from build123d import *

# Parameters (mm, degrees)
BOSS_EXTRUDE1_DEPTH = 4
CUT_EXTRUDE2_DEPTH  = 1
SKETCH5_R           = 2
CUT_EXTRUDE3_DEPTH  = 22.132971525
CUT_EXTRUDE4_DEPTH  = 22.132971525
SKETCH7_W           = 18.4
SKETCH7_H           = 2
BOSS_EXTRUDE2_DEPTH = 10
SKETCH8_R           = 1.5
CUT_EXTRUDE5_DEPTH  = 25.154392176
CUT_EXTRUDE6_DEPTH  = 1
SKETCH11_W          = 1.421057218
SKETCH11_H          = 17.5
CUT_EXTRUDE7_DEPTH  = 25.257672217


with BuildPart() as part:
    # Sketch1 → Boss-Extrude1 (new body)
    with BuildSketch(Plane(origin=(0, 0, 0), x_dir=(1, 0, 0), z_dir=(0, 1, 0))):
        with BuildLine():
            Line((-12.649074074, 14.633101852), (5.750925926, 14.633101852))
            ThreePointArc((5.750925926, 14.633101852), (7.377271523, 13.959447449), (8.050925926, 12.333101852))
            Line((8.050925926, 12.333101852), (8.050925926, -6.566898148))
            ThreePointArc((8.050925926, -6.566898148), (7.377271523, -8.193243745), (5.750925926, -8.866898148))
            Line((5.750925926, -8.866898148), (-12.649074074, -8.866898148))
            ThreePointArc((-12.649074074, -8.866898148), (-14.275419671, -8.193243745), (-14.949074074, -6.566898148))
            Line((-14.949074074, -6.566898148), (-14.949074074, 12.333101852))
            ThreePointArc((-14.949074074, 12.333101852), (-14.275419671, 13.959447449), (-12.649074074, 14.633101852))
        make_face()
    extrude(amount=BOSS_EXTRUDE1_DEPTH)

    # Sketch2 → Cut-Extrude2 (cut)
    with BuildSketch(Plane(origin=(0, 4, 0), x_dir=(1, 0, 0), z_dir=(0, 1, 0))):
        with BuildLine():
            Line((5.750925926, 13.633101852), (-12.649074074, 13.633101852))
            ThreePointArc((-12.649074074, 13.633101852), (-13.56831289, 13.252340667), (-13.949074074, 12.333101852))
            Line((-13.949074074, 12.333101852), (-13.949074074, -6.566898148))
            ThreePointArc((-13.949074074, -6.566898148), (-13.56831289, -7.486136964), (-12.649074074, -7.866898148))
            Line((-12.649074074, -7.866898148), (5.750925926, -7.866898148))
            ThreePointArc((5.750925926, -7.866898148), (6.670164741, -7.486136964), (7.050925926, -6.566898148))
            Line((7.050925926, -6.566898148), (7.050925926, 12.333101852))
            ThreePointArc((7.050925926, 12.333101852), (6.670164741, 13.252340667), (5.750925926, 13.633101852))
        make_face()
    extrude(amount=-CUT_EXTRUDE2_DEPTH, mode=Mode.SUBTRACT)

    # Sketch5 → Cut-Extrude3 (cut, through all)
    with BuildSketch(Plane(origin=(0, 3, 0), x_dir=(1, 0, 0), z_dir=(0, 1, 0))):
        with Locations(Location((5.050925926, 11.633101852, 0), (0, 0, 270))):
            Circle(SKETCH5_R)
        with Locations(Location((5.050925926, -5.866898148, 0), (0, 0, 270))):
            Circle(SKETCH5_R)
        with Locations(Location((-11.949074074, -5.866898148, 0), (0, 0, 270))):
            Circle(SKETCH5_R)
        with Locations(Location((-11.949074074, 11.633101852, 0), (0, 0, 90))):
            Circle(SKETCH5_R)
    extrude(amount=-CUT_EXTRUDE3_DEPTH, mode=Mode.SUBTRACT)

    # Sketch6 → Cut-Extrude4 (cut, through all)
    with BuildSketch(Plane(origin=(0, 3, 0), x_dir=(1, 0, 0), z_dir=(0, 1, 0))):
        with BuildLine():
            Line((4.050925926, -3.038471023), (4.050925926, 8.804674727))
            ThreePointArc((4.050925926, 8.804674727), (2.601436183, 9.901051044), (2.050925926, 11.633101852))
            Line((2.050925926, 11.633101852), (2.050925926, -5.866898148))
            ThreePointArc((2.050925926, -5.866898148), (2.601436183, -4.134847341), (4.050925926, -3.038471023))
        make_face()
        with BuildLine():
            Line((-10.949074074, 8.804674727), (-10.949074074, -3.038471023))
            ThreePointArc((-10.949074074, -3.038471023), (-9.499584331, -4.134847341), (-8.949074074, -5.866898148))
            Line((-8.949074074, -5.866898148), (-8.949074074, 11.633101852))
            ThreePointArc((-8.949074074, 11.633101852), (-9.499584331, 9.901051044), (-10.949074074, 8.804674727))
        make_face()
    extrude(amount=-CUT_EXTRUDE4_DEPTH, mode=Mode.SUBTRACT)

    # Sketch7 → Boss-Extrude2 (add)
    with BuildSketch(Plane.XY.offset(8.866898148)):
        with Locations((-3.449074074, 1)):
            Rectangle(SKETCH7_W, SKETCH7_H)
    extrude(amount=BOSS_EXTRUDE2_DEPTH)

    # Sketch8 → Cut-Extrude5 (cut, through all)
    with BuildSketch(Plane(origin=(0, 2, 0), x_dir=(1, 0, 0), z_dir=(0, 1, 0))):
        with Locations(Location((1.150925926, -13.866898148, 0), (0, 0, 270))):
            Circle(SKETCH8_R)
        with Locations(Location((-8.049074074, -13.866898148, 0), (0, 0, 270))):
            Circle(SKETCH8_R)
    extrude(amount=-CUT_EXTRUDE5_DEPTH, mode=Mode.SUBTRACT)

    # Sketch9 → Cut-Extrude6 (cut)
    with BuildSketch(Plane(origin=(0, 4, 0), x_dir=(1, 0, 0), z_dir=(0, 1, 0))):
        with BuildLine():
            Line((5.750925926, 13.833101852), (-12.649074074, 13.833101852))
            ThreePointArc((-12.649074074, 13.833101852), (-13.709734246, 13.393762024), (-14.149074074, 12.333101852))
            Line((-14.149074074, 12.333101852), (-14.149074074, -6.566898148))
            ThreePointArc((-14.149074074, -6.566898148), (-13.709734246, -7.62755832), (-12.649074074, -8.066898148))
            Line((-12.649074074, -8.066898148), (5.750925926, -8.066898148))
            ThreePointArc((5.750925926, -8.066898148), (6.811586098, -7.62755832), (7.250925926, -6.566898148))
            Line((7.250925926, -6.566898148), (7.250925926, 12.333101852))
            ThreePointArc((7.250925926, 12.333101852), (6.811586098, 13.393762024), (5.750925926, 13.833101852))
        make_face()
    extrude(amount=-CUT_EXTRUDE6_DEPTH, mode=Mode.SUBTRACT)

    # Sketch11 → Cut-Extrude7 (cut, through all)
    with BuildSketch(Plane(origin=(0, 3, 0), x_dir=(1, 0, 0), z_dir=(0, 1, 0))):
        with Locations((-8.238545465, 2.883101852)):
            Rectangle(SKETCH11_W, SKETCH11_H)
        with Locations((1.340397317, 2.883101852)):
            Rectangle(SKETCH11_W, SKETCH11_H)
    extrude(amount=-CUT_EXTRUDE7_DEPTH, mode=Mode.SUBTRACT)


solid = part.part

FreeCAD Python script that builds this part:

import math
import FreeCAD as App
import Part
import Sketcher
from FreeCAD import Vector
Q = App.Units.Quantity

doc = App.newDocument("Part")
params = doc.addObject("Spreadsheet::Sheet", "Params")
for row, (alias, value) in enumerate([
    ("sketch1_radius", "2.3 mm"),
    ("sketch1_width", "18.4 mm"),
    ("sketch1_height", "18.9 mm"),
    ("pad1_length", "4 mm"),
    ("sketch2_radius", "1.3 mm"),
    ("sketch2_width", "18.4 mm"),
    ("sketch2_height", "18.9 mm"),
    ("pocket1_length", "1 mm"),
    ("sketch3_diameter", "4 mm"),
    ("sketch4_radius", "3 mm"),
    ("sketch4_height", "17.5 mm"),
    ("sketch5_height", "2 mm"),
    ("sketch5_width", "18.4 mm"),
    ("pad2_length", "10 mm"),
    ("sketch6_diameter", "3 mm"),
    ("sketch7_radius", "1.5 mm"),
    ("sketch7_width", "18.4 mm"),
    ("sketch7_height", "18.9 mm"),
    ("pocket5_length", "1 mm"),
    ("sketch8_height", "17.5 mm"),
], start=1):
    params.set(f"A{row}", alias)
    params.set(f"B{row}", "=" + value)
    params.setAlias(f"B{row}", alias)

body = doc.addObject("PartDesign::Body", "Body")

# Sketch on XZ plane
sketch1 = body.newObject("Sketcher::SketchObject", "Sketch")
sketch1.AttachmentSupport = (doc.getObject("XZ_Plane"), [""])
sketch1.MapMode = "FlatFace"
sketch1.addGeometry([
    Part.LineSegment(Vector(5.8, -14.6, 0), Vector(-12.6, -14.6, 0)),  # 0
    Part.ArcOfCircle(Part.Circle(Vector(-12.6, -12.3, 0), Vector(0, 0, 1), 2.3), math.radians(180), math.radians(270)),  # 1
    Part.LineSegment(Vector(-14.9, -12.3, 0), Vector(-14.9, 6.6, 0)),  # 2
    Part.ArcOfCircle(Part.Circle(Vector(-12.6, 6.6, 0), Vector(0, 0, 1), 2.3), math.radians(90), math.radians(180)),  # 3
    Part.LineSegment(Vector(-12.6, 8.9, 0), Vector(5.8, 8.9, 0)),  # 4
    Part.ArcOfCircle(Part.Circle(Vector(5.8, 6.6, 0), Vector(0, 0, 1), 2.3), math.radians(0), math.radians(90)),  # 5
    Part.LineSegment(Vector(8.1, 6.6, 0), Vector(8.1, -12.3, 0)),  # 6
    Part.ArcOfCircle(Part.Circle(Vector(5.8, -12.3, 0), Vector(0, 0, 1), 2.3), math.radians(-90), math.radians(0)),  # 7
], False)
sketch1.addConstraint([
    Sketcher.Constraint("Tangent", 0, 2, 1, 2),
    Sketcher.Constraint("Tangent", 1, 1, 2, 1),
    Sketcher.Constraint("Tangent", 2, 2, 3, 2),
    Sketcher.Constraint("Tangent", 3, 1, 4, 1),
    Sketcher.Constraint("Tangent", 4, 2, 5, 2),
    Sketcher.Constraint("Tangent", 5, 1, 6, 1),
    Sketcher.Constraint("Tangent", 6, 2, 7, 2),
    Sketcher.Constraint("Tangent", 7, 1, 0, 1),
    Sketcher.Constraint("Horizontal", 0),
    Sketcher.Constraint("Vertical", 2),
    Sketcher.Constraint("Horizontal", 4),
    Sketcher.Constraint("Vertical", 6),
    Sketcher.Constraint("Equal", 1, 3),
    Sketcher.Constraint("Equal", 3, 5),
    Sketcher.Constraint("Equal", 5, 7),
    Sketcher.Constraint("Radius", 1, Q("2.3 mm")),
    Sketcher.Constraint("DistanceX", 0, 2, 0, 1, Q("18.4 mm")),
    Sketcher.Constraint("DistanceY", 2, 1, 2, 2, Q("18.9 mm")),
    Sketcher.Constraint("DistanceY", 1, 3, -1, 1, Q("12.333102 mm")),
    Sketcher.Constraint("DistanceX", 1, 3, -1, 1, Q("12.649074 mm")),
])
sketch1.setExpression("Constraints[15]", "Params.sketch1_radius")
sketch1.setExpression("Constraints[16]", "Params.sketch1_width")
sketch1.setExpression("Constraints[17]", "Params.sketch1_height")
pad1 = body.newObject("PartDesign::Pad", "Pad")
pad1.Profile = sketch1
pad1.setExpression("Length", "Params.pad1_length")
pad1.Reversed = True

# Sketch on XZ plane
sketch2 = body.newObject("Sketcher::SketchObject", "Sketch001")
sketch2.AttachmentSupport = (doc.getObject("XZ_Plane"), [""])
sketch2.MapMode = "FlatFace"
sketch2.AttachmentOffset = App.Placement(Vector(0, 0, -4), App.Rotation())
sketch2.addGeometry([
    Part.LineSegment(Vector(5.8, -13.6, 0), Vector(-12.6, -13.6, 0)),  # 0
    Part.ArcOfCircle(Part.Circle(Vector(-12.6, -12.3, 0), Vector(0, 0, 1), 1.3), math.radians(180), math.radians(270)),  # 1
    Part.LineSegment(Vector(-13.9, -12.3, 0), Vector(-13.9, 6.6, 0)),  # 2
    Part.ArcOfCircle(Part.Circle(Vector(-12.6, 6.6, 0), Vector(0, 0, 1), 1.3), math.radians(90), math.radians(180)),  # 3
    Part.LineSegment(Vector(-12.6, 7.9, 0), Vector(5.8, 7.9, 0)),  # 4
    Part.ArcOfCircle(Part.Circle(Vector(5.8, 6.6, 0), Vector(0, 0, 1), 1.3), math.radians(0), math.radians(90)),  # 5
    Part.LineSegment(Vector(7.1, 6.6, 0), Vector(7.1, -12.3, 0)),  # 6
    Part.ArcOfCircle(Part.Circle(Vector(5.8, -12.3, 0), Vector(0, 0, 1), 1.3), math.radians(-90), math.radians(0)),  # 7
], False)
sketch2.addConstraint([
    Sketcher.Constraint("Tangent", 0, 2, 1, 2),
    Sketcher.Constraint("Tangent", 1, 1, 2, 1),
    Sketcher.Constraint("Tangent", 2, 2, 3, 2),
    Sketcher.Constraint("Tangent", 3, 1, 4, 1),
    Sketcher.Constraint("Tangent", 4, 2, 5, 2),
    Sketcher.Constraint("Tangent", 5, 1, 6, 1),
    Sketcher.Constraint("Tangent", 6, 2, 7, 2),
    Sketcher.Constraint("Tangent", 7, 1, 0, 1),
    Sketcher.Constraint("Horizontal", 0),
    Sketcher.Constraint("Vertical", 2),
    Sketcher.Constraint("Horizontal", 4),
    Sketcher.Constraint("Vertical", 6),
    Sketcher.Constraint("Equal", 1, 3),
    Sketcher.Constraint("Equal", 3, 5),
    Sketcher.Constraint("Equal", 5, 7),
    Sketcher.Constraint("Radius", 1, Q("1.3 mm")),
    Sketcher.Constraint("DistanceX", 0, 2, 0, 1, Q("18.4 mm")),
    Sketcher.Constraint("DistanceY", 2, 1, 2, 2, Q("18.9 mm")),
    Sketcher.Constraint("DistanceY", 1, 3, -1, 1, Q("12.333102 mm")),
    Sketcher.Constraint("DistanceX", 1, 3, -1, 1, Q("12.649074 mm")),
])
sketch2.setExpression("Constraints[15]", "Params.sketch2_radius")
sketch2.setExpression("Constraints[16]", "Params.sketch2_width")
sketch2.setExpression("Constraints[17]", "Params.sketch2_height")
pocket1 = body.newObject("PartDesign::Pocket", "Pocket")
pocket1.Profile = sketch2
pocket1.setExpression("Length", "Params.pocket1_length")
pocket1.Reversed = True

# Sketch on XZ plane
sketch3 = body.newObject("Sketcher::SketchObject", "Sketch002")
sketch3.AttachmentSupport = (doc.getObject("XZ_Plane"), [""])
sketch3.MapMode = "FlatFace"
sketch3.AttachmentOffset = App.Placement(Vector(0, 0, -3), App.Rotation())
sketch3.addGeometry([
    Part.Circle(Vector(5.1, -11.6, 0), Vector(0, 0, 1), 2),
    Part.Circle(Vector(5.1, 5.9, 0), Vector(0, 0, 1), 2),
    Part.Circle(Vector(-11.9, 5.9, 0), Vector(0, 0, 1), 2),
    Part.Circle(Vector(-11.9, -11.6, 0), Vector(0, 0, 1), 2),
], False)
sketch3.addConstraint([
    Sketcher.Constraint("Equal", 0, 1),
    Sketcher.Constraint("Equal", 1, 2),
    Sketcher.Constraint("Equal", 2, 3),
    Sketcher.Constraint("Horizontal", 1, 3, 2, 3),
    Sketcher.Constraint("Horizontal", 0, 3, 3, 3),
    Sketcher.Constraint("Vertical", 0, 3, 1, 3),
    Sketcher.Constraint("Vertical", 2, 3, 3, 3),
    Sketcher.Constraint("Diameter", 0, Q("4 mm")),
    Sketcher.Constraint("DistanceX", 2, 3, 1, 3, Q("17 mm")),
    Sketcher.Constraint("DistanceY", 0, 3, 1, 3, Q("17.5 mm")),
    Sketcher.Constraint("DistanceY", 0, 3, -1, 1, Q("11.633102 mm")),
    Sketcher.Constraint("DistanceX", -1, 1, 0, 3, Q("5.050926 mm")),
])
sketch3.setExpression("Constraints[7]", "Params.sketch3_diameter")
pocket2 = body.newObject("PartDesign::Pocket", "Pocket001")
pocket2.Profile = sketch3
pocket2.Type = "ThroughAll"
pocket2.Reversed = True

# Sketch on XZ plane
sketch4 = body.newObject("Sketcher::SketchObject", "Sketch003")
sketch4.AttachmentSupport = (doc.getObject("XZ_Plane"), [""])
sketch4.MapMode = "FlatFace"
sketch4.AttachmentOffset = App.Placement(Vector(0, 0, -3), App.Rotation())
sketch4.addGeometry([
    Part.LineSegment(Vector(4.1, 3, 0), Vector(4.1, -8.8, 0)),  # 0
    Part.ArcOfCircle(Part.Circle(Vector(5.1, -11.6, 0), Vector(0, 0, 1), 3), math.radians(109), math.radians(180)),  # 1
    Part.LineSegment(Vector(2.1, -11.6, 0), Vector(2.1, 5.9, 0)),  # 2
    Part.ArcOfCircle(Part.Circle(Vector(5.1, 5.9, 0), Vector(0, 0, 1), 3), math.radians(-180), math.radians(-109)),  # 3
    Part.LineSegment(Vector(-10.9, -8.8, 0), Vector(-10.9, 3, 0)),  # 4
    Part.ArcOfCircle(Part.Circle(Vector(-11.9, 5.9, 0), Vector(0, 0, 1), 3), math.radians(-71), math.radians(0)),  # 5
    Part.LineSegment(Vector(-8.9, 5.9, 0), Vector(-8.9, -11.6, 0)),  # 6
    Part.ArcOfCircle(Part.Circle(Vector(-11.9, -11.6, 0), Vector(0, 0, 1), 3), math.radians(0), math.radians(71)),  # 7
], False)
sketch4.addConstraint([
    Sketcher.Constraint("Coincident", 0, 2, 1, 1),
    Sketcher.Constraint("Tangent", 1, 2, 2, 1),
    Sketcher.Constraint("Tangent", 2, 2, 3, 1),
    Sketcher.Constraint("Coincident", 3, 2, 0, 1),
    Sketcher.Constraint("Coincident", 4, 2, 5, 1),
    Sketcher.Constraint("Tangent", 5, 2, 6, 1),
    Sketcher.Constraint("Tangent", 6, 2, 7, 1),
    Sketcher.Constraint("Coincident", 7, 2, 4, 1),
    Sketcher.Constraint("Vertical", 0),
    Sketcher.Constraint("Vertical", 2),
    Sketcher.Constraint("Vertical", 4),
    Sketcher.Constraint("Vertical", 6),
    Sketcher.Constraint("Equal", 1, 3),
    Sketcher.Constraint("Equal", 3, 5),
    Sketcher.Constraint("Equal", 5, 7),
    Sketcher.Constraint("Horizontal", 3, 3, 5, 3),
    Sketcher.Constraint("Horizontal", 1, 3, 7, 3),
    Sketcher.Constraint("Horizontal", 3, 2, 4, 2),
    Sketcher.Constraint("Radius", 1, Q("3 mm")),
    Sketcher.Constraint("DistanceY", 2, 1, 2, 2, Q("17.5 mm")),
    Sketcher.Constraint("DistanceX", 5, 3, 3, 3, Q("17 mm")),
    Sketcher.Constraint("DistanceX", 0, 2, 1, 3, Q("1 mm")),
    Sketcher.Constraint("DistanceY", 1, 3, -1, 1, Q("11.633102 mm")),
    Sketcher.Constraint("DistanceX", -1, 1, 1, 3, Q("5.050926 mm")),
])
sketch4.setExpression("Constraints[18]", "Params.sketch4_radius")
sketch4.setExpression("Constraints[19]", "Params.sketch4_height")
pocket3 = body.newObject("PartDesign::Pocket", "Pocket002")
pocket3.Profile = sketch4
pocket3.Type = "ThroughAll"
pocket3.Reversed = True

# Sketch on XY plane
sketch5 = body.newObject("Sketcher::SketchObject", "Sketch004")
sketch5.AttachmentSupport = (doc.getObject("XY_Plane"), [""])
sketch5.MapMode = "FlatFace"
sketch5.AttachmentOffset = App.Placement(Vector(0, 0, 8.866898), App.Rotation())
sketch5.addGeometry([
    Part.LineSegment(Vector(-12.6, 2, 0), Vector(-12.6, 0, 0)),
    Part.LineSegment(Vector(-12.6, 0, 0), Vector(5.8, 0, 0)),
    Part.LineSegment(Vector(5.8, 0, 0), Vector(5.8, 2, 0)),
    Part.LineSegment(Vector(5.8, 2, 0), Vector(-12.6, 2, 0)),
], False)
sketch5.addConstraint([
    Sketcher.Constraint("Coincident", 0, 2, 1, 1),
    Sketcher.Constraint("Coincident", 1, 2, 2, 1),
    Sketcher.Constraint("Coincident", 2, 2, 3, 1),
    Sketcher.Constraint("Coincident", 3, 2, 0, 1),
    Sketcher.Constraint("Vertical", 0),
    Sketcher.Constraint("Horizontal", 1),
    Sketcher.Constraint("Vertical", 2),
    Sketcher.Constraint("Horizontal", 3),
    Sketcher.Constraint("PointOnObject", 0, 2, -1),
    Sketcher.Constraint("DistanceY", 0, 2, 0, 1, Q("2 mm")),
    Sketcher.Constraint("DistanceX", 1, 1, 1, 2, Q("18.4 mm")),
    Sketcher.Constraint("DistanceX", 0, 2, -1, 1, Q("12.649074 mm")),
])
sketch5.setExpression("Constraints[9]", "Params.sketch5_height")
sketch5.setExpression("Constraints[10]", "Params.sketch5_width")
pad2 = body.newObject("PartDesign::Pad", "Pad001")
pad2.Profile = sketch5
pad2.setExpression("Length", "Params.pad2_length")

# Sketch on XZ plane
sketch6 = body.newObject("Sketcher::SketchObject", "Sketch005")
sketch6.AttachmentSupport = (doc.getObject("XZ_Plane"), [""])
sketch6.MapMode = "FlatFace"
sketch6.AttachmentOffset = App.Placement(Vector(0, 0, -2), App.Rotation())
sketch6.addGeometry([
    Part.Circle(Vector(1.2, 13.9, 0), Vector(0, 0, 1), 1.5),
    Part.Circle(Vector(-8, 13.9, 0), Vector(0, 0, 1), 1.5),
], False)
sketch6.addConstraint([
    Sketcher.Constraint("Equal", 0, 1),
    Sketcher.Constraint("Horizontal", 0, 3, 1, 3),
    Sketcher.Constraint("Diameter", 0, Q("3 mm")),
    Sketcher.Constraint("DistanceX", 1, 3, 0, 3, Q("9.2 mm")),
    Sketcher.Constraint("DistanceY", -1, 1, 0, 3, Q("13.866898 mm")),
    Sketcher.Constraint("DistanceX", -1, 1, 0, 3, Q("1.150926 mm")),
])
sketch6.setExpression("Constraints[2]", "Params.sketch6_diameter")
pocket4 = body.newObject("PartDesign::Pocket", "Pocket003")
pocket4.Profile = sketch6
pocket4.Type = "ThroughAll"
pocket4.Reversed = True

# Sketch on XZ plane
sketch7 = body.newObject("Sketcher::SketchObject", "Sketch006")
sketch7.AttachmentSupport = (doc.getObject("XZ_Plane"), [""])
sketch7.MapMode = "FlatFace"
sketch7.AttachmentOffset = App.Placement(Vector(0, 0, -4), App.Rotation())
sketch7.addGeometry([
    Part.LineSegment(Vector(5.8, -13.8, 0), Vector(-12.6, -13.8, 0)),  # 0
    Part.ArcOfCircle(Part.Circle(Vector(-12.6, -12.3, 0), Vector(0, 0, 1), 1.5), math.radians(180), math.radians(270)),  # 1
    Part.LineSegment(Vector(-14.1, -12.3, 0), Vector(-14.1, 6.6, 0)),  # 2
    Part.ArcOfCircle(Part.Circle(Vector(-12.6, 6.6, 0), Vector(0, 0, 1), 1.5), math.radians(90), math.radians(180)),  # 3
    Part.LineSegment(Vector(-12.6, 8.1, 0), Vector(5.8, 8.1, 0)),  # 4
    Part.ArcOfCircle(Part.Circle(Vector(5.8, 6.6, 0), Vector(0, 0, 1), 1.5), math.radians(0), math.radians(90)),  # 5
    Part.LineSegment(Vector(7.3, 6.6, 0), Vector(7.3, -12.3, 0)),  # 6
    Part.ArcOfCircle(Part.Circle(Vector(5.8, -12.3, 0), Vector(0, 0, 1), 1.5), math.radians(-90), math.radians(0)),  # 7
], False)
sketch7.addConstraint([
    Sketcher.Constraint("Tangent", 0, 2, 1, 2),
    Sketcher.Constraint("Tangent", 1, 1, 2, 1),
    Sketcher.Constraint("Tangent", 2, 2, 3, 2),
    Sketcher.Constraint("Tangent", 3, 1, 4, 1),
    Sketcher.Constraint("Tangent", 4, 2, 5, 2),
    Sketcher.Constraint("Tangent", 5, 1, 6, 1),
    Sketcher.Constraint("Tangent", 6, 2, 7, 2),
    Sketcher.Constraint("Tangent", 7, 1, 0, 1),
    Sketcher.Constraint("Horizontal", 0),
    Sketcher.Constraint("Vertical", 2),
    Sketcher.Constraint("Horizontal", 4),
    Sketcher.Constraint("Vertical", 6),
    Sketcher.Constraint("Equal", 1, 3),
    Sketcher.Constraint("Equal", 3, 5),
    Sketcher.Constraint("Equal", 5, 7),
    Sketcher.Constraint("Radius", 1, Q("1.5 mm")),
    Sketcher.Constraint("DistanceX", 0, 2, 0, 1, Q("18.4 mm")),
    Sketcher.Constraint("DistanceY", 2, 1, 2, 2, Q("18.9 mm")),
    Sketcher.Constraint("DistanceY", 1, 3, -1, 1, Q("12.333102 mm")),
    Sketcher.Constraint("DistanceX", 1, 3, -1, 1, Q("12.649074 mm")),
])
sketch7.setExpression("Constraints[15]", "Params.sketch7_radius")
sketch7.setExpression("Constraints[16]", "Params.sketch7_width")
sketch7.setExpression("Constraints[17]", "Params.sketch7_height")
pocket5 = body.newObject("PartDesign::Pocket", "Pocket004")
pocket5.Profile = sketch7
pocket5.setExpression("Length", "Params.pocket5_length")
pocket5.Reversed = True

# Sketch on XZ plane
sketch8 = body.newObject("Sketcher::SketchObject", "Sketch007")
sketch8.AttachmentSupport = (doc.getObject("XZ_Plane"), [""])
sketch8.MapMode = "FlatFace"
sketch8.AttachmentOffset = App.Placement(Vector(0, 0, -3), App.Rotation())
sketch8.addGeometry([
    Part.LineSegment(Vector(-8.9, -11.6, 0), Vector(-8.9, 5.9, 0)),  # 0
    Part.LineSegment(Vector(-8.9, 5.9, 0), Vector(-7.5, 5.9, 0)),  # 1
    Part.LineSegment(Vector(-7.5, 5.9, 0), Vector(-7.5, -11.6, 0)),  # 2
    Part.LineSegment(Vector(-7.5, -11.6, 0), Vector(-8.9, -11.6, 0)),  # 3
    Part.LineSegment(Vector(0.6, -11.6, 0), Vector(0.6, 5.9, 0)),  # 4
    Part.LineSegment(Vector(0.6, 5.9, 0), Vector(2.1, 5.9, 0)),  # 5
    Part.LineSegment(Vector(2.1, 5.9, 0), Vector(2.1, -11.6, 0)),  # 6
    Part.LineSegment(Vector(2.1, -11.6, 0), Vector(0.6, -11.6, 0)),  # 7
], False)
sketch8.addConstraint([
    Sketcher.Constraint("Coincident", 0, 2, 1, 1),
    Sketcher.Constraint("Coincident", 1, 2, 2, 1),
    Sketcher.Constraint("Coincident", 2, 2, 3, 1),
    Sketcher.Constraint("Coincident", 3, 2, 0, 1),
    Sketcher.Constraint("Coincident", 4, 2, 5, 1),
    Sketcher.Constraint("Coincident", 5, 2, 6, 1),
    Sketcher.Constraint("Coincident", 6, 2, 7, 1),
    Sketcher.Constraint("Coincident", 7, 2, 4, 1),
    Sketcher.Constraint("Vertical", 0),
    Sketcher.Constraint("Horizontal", 1),
    Sketcher.Constraint("Vertical", 2),
    Sketcher.Constraint("Horizontal", 3),
    Sketcher.Constraint("Vertical", 4),
    Sketcher.Constraint("Horizontal", 5),
    Sketcher.Constraint("Vertical", 6),
    Sketcher.Constraint("Horizontal", 7),
    Sketcher.Constraint("Horizontal", 1, 2, 4, 2),
    Sketcher.Constraint("Horizontal", 3, 2, 6, 2),
    Sketcher.Constraint("Equal", 3, 5),
    Sketcher.Constraint("DistanceY", 0, 1, 0, 2, Q("17.5 mm")),
    Sketcher.Constraint("DistanceX", 0, 2, 5, 2, Q("11 mm")),
    Sketcher.Constraint("DistanceY", -1, 1, 0, 2, Q("5.866898 mm")),
    Sketcher.Constraint("DistanceX", 1, 1, 1, 2, Q("1.421057 mm")),
    Sketcher.Constraint("DistanceX", -1, 1, 4, 2, Q("0.629869 mm")),
])
sketch8.setExpression("Constraints[19]", "Params.sketch8_height")
pocket6 = body.newObject("PartDesign::Pocket", "Pocket005")
pocket6.Profile = sketch8
pocket6.Type = "ThroughAll"
pocket6.Reversed = True

doc.recompute()
